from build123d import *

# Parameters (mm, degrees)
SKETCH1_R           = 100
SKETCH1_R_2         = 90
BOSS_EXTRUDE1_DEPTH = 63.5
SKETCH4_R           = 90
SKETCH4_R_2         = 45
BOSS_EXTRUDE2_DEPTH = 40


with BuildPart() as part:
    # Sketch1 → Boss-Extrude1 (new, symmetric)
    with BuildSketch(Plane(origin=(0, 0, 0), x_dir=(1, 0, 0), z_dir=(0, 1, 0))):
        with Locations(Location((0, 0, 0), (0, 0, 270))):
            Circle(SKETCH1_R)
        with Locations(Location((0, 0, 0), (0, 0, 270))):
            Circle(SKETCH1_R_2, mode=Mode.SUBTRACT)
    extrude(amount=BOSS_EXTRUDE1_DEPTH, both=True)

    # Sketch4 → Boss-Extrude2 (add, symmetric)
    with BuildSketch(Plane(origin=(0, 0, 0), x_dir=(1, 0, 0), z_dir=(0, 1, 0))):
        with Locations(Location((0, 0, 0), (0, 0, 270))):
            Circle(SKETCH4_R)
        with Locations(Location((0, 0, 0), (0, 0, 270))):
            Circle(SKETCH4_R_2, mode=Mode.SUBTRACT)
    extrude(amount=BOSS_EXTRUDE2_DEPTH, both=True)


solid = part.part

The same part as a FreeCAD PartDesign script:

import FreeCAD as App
import Part
import Sketcher

V = App.Vector

doc = App.newDocument("Part")
body = doc.addObject("PartDesign::Body", "Body")

# Sketch on XZ plane
sketch1 = doc.addObject("Sketcher::SketchObject", "Sketch")
body.addObject(sketch1)
sketch1.AttachmentSupport = (doc.XZ_Plane, [""])
sketch1.MapMode = "FlatFace"
sketch1.addGeometry([
    Part.Circle(V(0, 0, 0), V(0, 0, 1), 100),
    Part.Circle(V(0, 0, 0), V(0, 0, 1), 90),
], False)
sketch1.addConstraint([
    Sketcher.Constraint("Coincident", 0, 3, -1, 1),
    Sketcher.Constraint("Coincident", 1, 3, -1, 1),
    Sketcher.Constraint("Diameter", 0, 200.0),
    Sketcher.Constraint("Diameter", 1, 180.0),
])
pad1 = doc.addObject("PartDesign::Pad", "Pad")
body.addObject(pad1)
pad1.Profile = sketch1
pad1.Length = 127
pad1.Midplane = True

# Sketch on XZ plane
sketch2 = doc.addObject("Sketcher::SketchObject", "Sketch001")
body.addObject(sketch2)
sketch2.AttachmentSupport = (doc.XZ_Plane, [""])
sketch2.MapMode = "FlatFace"
sketch2.addGeometry([
    Part.Circle(V(0, 0, 0), V(0, 0, 1), 90),
    Part.Circle(V(0, 0, 0), V(0, 0, 1), 45),
], False)
sketch2.addConstraint([
    Sketcher.Constraint("Coincident", 0, 3, -1, 1),
    Sketcher.Constraint("Coincident", 1, 3, -1, 1),
    Sketcher.Constraint("Diameter", 0, 180.0),
    Sketcher.Constraint("Diameter", 1, 90.0),
])
pad2 = doc.addObject("PartDesign::Pad", "Pad001")
body.addObject(pad2)
pad2.Profile = sketch2
pad2.Length = 80
pad2.Midplane = True

doc.recompute()
